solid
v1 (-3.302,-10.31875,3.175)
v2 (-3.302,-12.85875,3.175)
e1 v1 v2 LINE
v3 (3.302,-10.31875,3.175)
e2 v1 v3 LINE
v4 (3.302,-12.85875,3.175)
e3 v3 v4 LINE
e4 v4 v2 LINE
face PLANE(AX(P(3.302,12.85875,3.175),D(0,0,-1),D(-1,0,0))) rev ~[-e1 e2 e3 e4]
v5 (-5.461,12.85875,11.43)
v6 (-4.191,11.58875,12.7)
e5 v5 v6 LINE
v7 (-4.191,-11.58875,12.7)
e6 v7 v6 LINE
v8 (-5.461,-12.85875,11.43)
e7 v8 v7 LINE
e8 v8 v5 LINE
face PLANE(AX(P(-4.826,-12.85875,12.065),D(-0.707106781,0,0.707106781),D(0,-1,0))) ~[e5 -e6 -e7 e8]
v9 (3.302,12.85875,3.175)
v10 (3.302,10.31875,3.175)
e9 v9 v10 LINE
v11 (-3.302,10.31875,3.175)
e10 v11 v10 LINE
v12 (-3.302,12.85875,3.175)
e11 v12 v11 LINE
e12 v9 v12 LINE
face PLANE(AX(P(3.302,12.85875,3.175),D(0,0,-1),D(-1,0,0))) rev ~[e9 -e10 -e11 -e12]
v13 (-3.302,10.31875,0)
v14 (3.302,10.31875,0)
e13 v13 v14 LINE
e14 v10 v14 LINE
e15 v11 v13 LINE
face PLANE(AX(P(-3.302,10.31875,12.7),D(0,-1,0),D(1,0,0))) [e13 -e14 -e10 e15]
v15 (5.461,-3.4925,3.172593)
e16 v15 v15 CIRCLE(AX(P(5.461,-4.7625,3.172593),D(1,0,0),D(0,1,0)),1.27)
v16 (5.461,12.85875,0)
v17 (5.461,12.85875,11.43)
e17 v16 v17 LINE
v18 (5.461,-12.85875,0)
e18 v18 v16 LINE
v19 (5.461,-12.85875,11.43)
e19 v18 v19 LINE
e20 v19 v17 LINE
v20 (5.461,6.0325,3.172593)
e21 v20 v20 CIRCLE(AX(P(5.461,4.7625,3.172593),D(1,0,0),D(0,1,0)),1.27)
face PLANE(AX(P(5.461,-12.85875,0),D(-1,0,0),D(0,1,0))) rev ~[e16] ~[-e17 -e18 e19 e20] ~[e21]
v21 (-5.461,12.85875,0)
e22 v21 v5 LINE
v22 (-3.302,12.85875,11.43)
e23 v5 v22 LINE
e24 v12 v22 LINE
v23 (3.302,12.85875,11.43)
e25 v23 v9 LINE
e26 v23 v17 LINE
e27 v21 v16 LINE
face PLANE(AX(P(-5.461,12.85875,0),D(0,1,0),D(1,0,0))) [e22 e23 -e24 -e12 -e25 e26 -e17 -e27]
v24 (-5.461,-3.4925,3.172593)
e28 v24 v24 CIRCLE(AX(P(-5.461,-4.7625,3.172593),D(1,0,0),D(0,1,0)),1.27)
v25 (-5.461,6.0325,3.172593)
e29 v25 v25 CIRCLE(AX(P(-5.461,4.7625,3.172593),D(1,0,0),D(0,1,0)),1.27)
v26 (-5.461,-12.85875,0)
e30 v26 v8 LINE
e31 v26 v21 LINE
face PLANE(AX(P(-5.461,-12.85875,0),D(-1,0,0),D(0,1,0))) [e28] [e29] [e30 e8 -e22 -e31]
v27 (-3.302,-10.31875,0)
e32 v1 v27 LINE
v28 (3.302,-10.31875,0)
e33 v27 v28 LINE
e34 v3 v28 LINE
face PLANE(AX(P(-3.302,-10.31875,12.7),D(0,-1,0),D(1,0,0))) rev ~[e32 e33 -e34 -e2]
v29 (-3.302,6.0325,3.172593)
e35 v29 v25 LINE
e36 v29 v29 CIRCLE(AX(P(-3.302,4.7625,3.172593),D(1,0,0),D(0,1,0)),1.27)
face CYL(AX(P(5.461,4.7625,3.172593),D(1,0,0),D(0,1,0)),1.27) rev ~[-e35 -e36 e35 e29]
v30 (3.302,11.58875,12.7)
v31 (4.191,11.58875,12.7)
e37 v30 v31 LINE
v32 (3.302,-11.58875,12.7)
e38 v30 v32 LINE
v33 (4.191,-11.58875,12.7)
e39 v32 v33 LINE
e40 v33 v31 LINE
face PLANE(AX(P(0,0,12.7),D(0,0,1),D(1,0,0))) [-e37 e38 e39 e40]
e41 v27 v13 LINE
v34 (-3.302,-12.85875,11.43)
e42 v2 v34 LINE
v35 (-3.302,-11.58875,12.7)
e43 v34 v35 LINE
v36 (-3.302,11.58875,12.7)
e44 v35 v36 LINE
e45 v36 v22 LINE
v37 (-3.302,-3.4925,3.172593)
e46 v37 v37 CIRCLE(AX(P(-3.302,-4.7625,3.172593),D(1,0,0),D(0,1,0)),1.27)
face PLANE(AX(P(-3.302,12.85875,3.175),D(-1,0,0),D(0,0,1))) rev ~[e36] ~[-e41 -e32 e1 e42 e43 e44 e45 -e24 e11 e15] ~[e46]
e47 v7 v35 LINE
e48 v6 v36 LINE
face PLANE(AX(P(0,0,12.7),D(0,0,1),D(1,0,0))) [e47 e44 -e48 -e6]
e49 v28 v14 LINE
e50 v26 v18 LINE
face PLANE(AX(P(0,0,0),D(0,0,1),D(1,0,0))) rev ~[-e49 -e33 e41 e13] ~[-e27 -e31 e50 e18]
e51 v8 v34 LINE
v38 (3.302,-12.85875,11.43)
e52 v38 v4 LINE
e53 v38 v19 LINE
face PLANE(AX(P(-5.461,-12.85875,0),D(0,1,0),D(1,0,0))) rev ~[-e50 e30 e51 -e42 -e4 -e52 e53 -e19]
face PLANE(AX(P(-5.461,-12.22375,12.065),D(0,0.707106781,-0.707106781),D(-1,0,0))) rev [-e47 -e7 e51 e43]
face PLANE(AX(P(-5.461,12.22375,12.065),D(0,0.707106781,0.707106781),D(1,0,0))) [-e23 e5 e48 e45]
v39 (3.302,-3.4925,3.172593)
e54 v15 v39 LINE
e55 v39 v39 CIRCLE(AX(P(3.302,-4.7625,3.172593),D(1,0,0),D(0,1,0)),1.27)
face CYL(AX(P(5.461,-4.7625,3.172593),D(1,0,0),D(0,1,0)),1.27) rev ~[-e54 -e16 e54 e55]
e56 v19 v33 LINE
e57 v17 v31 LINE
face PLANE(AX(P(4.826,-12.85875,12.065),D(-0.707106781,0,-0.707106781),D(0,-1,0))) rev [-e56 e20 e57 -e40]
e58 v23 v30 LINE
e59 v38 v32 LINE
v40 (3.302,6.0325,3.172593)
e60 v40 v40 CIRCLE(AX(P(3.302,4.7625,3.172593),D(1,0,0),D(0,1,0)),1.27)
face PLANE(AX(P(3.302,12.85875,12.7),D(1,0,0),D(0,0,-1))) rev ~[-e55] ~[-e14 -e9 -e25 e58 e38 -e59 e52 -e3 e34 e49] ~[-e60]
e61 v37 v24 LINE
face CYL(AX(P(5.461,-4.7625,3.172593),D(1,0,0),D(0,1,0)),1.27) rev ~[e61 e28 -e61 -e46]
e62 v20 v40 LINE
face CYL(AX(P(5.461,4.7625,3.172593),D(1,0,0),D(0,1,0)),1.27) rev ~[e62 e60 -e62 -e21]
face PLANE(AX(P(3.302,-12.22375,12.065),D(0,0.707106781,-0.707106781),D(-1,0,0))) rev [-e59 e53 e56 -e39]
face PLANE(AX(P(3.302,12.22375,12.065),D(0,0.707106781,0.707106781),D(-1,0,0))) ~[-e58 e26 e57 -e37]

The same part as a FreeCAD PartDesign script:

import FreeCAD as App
import Part
import Sketcher
from FreeCAD import Vector
Q = App.Units.Quantity


def edges_at(feature, points):
    """Names of the edges that pass closest to the given points."""
    edges = feature.Shape.Edges
    near = lambda p: min(range(len(edges)), key=lambda i: edges[i].distToShape(Part.Vertex(*p))[0])
    return sorted({f"Edge{near(p) + 1}" for p in points})


def add_polygon(sketch, points):
    """Adds a closed chain of lines whose ends are joined by coincident constraints."""
    first, n = sketch.GeometryCount, len(points)
    for a, b in zip(points, points[1:] + points[:1]):
        sketch.addGeometry(Part.LineSegment(App.Vector(*a, 0), App.Vector(*b, 0)), False)
    for i in range(n):
        sketch.addConstraint(Sketcher.Constraint("Coincident", first + i, 2, first + (i + 1) % n, 1))

doc = App.newDocument("Part")
params = doc.addObject("Spreadsheet::Sheet", "Params")
for row, (alias, value) in enumerate([
    ("sketch1_width", "0.43 in"),
    ("pad1_length", "0.5 in"),
    ("sketch2_width", "0.26 in"),
    ("sketch2_height", "0.8125 in"),
    ("pocket1_length", "1 in"),
    ("sketch3_width", "0.26 in"),
    ("sketch3_height", "0.375 in"),
    ("pocket2_length", "32.18438 mm"),
    ("sketch4_diameter", "0.1 in"),
    ("pocket3_length", "1 in"),
    ("chamfer_size", "0.05 in"),
], start=1):
    params.set(f"A{row}", alias)
    params.set(f"B{row}", "=" + value)
    params.setAlias(f"B{row}", alias)

body = doc.addObject("PartDesign::Body", "Body")

# Sketch on XY plane
sketch1 = body.newObject("Sketcher::SketchObject", "Sketch")
sketch1.AttachmentSupport = (doc.getObject("XY_Plane"), [""])
sketch1.MapMode = "FlatFace"
add_polygon(sketch1, [(-5.461, 12.85875), (-5.461, -12.85875), (5.461, -12.85875), (5.461, 12.85875)])  # lines 0-3
sketch1.addConstraint(Sketcher.Constraint("Vertical", 0))
sketch1.addConstraint(Sketcher.Constraint("Horizontal", 1))
sketch1.addConstraint(Sketcher.Constraint("Vertical", 2))
sketch1.addConstraint(Sketcher.Constraint("Horizontal", 3))
sketch1.addConstraint(Sketcher.Constraint("Symmetric", 0, 2, 2, 2, -1, 1))
sketch1.addConstraint(Sketcher.Constraint("DistanceX", 1, 1, 1, 2, Q("0.43 in")))
sketch1.addConstraint(Sketcher.Constraint("DistanceY", 0, 2, 0, 1, Q("1.0125 in")))
sketch1.setExpression("Constraints[9]", "Params.sketch1_width")
pad1 = body.newObject("PartDesign::Pad", "Pad")
pad1.Profile = sketch1
pad1.setExpression("Length", "Params.pad1_length")

# Sketch on XY plane
sketch2 = body.newObject("Sketcher::SketchObject", "Sketch001")
sketch2.AttachmentSupport = (doc.getObject("XY_Plane"), [""])
sketch2.MapMode = "FlatFace"
sketch2.AttachmentOffset = App.Placement(Vector(0, 0, 0.5 * 25.4), App.Rotation())
add_polygon(sketch2, [(-3.302, 10.31875), (-3.302, -10.31875), (3.302, -10.31875), (3.302, 10.31875)])  # lines 0-3
sketch2.addConstraint(Sketcher.Constraint("Vertical", 0))
sketch2.addConstraint(Sketcher.Constraint("Horizontal", 1))
sketch2.addConstraint(Sketcher.Constraint("Vertical", 2))
sketch2.addConstraint(Sketcher.Constraint("Horizontal", 3))
sketch2.addConstraint(Sketcher.Constraint("Symmetric", 0, 2, 2, 2, -1, 1))
sketch2.addConstraint(Sketcher.Constraint("DistanceX", 1, 1, 1, 2, Q("0.26 in")))
sketch2.addConstraint(Sketcher.Constraint("DistanceY", 0, 2, 0, 1, Q("0.8125 in")))
sketch2.setExpression("Constraints[9]", "Params.sketch2_width")
sketch2.setExpression("Constraints[10]", "Params.sketch2_height")
pocket1 = body.newObject("PartDesign::Pocket", "Pocket")
pocket1.Profile = sketch2
pocket1.setExpression("Length", "Params.pocket1_length")

# Sketch on XZ plane
sketch3 = body.newObject("Sketcher::SketchObject", "Sketch002")
sketch3.AttachmentSupport = (doc.getObject("XZ_Plane"), [""])
sketch3.MapMode = "FlatFace"
sketch3.AttachmentOffset = App.Placement(Vector(0, 0, -12.85875), App.Rotation())
add_polygon(sketch3, [(3.302, 12.7), (3.302, 3.175), (-3.302, 3.175), (-3.302, 12.7)])  # lines 0-3
sketch3.addConstraint(Sketcher.Constraint("Vertical", 0))
sketch3.addConstraint(Sketcher.Constraint("Horizontal", 1))
sketch3.addConstraint(Sketcher.Constraint("Vertical", 2))
sketch3.addConstraint(Sketcher.Constraint("Horizontal", 3))
sketch3.addConstraint(Sketcher.Constraint("DistanceX", 1, 2, 1, 1, Q("0.26 in")))
sketch3.addConstraint(Sketcher.Constraint("DistanceY", -1, 1, 2, 2, Q("0.5 in")))
sketch3.addConstraint(Sketcher.Constraint("DistanceY", 0, 2, 0, 1, Q("0.375 in")))
sketch3.addConstraint(Sketcher.Constraint("DistanceX", -1, 1, 0, 2, Q("0.13 in")))
sketch3.setExpression("Constraints[8]", "Params.sketch3_width")
sketch3.setExpression("Constraints[10]", "Params.sketch3_height")
pocket2 = body.newObject("PartDesign::Pocket", "Pocket001")
pocket2.Profile = sketch3
pocket2.setExpression("Length", "Params.pocket2_length")
pocket2.Reversed = True

# Sketch on YZ plane
sketch4 = body.newObject("Sketcher::SketchObject", "Sketch003")
sketch4.AttachmentSupport = (doc.getObject("YZ_Plane"), [""])
sketch4.MapMode = "FlatFace"
sketch4.AttachmentOffset = App.Placement(Vector(0, 0, 0.215 * 25.4), App.Rotation())
sketch4.addGeometry(Part.Circle(Vector(-4.7625, 3.172593, 0), Vector(0, 0, 1), 1.27), False)
sketch4.addGeometry(Part.Circle(Vector(4.7625, 3.172593, 0), Vector(0, 0, 1), 1.27), False)
sketch4.addConstraint(Sketcher.Constraint("Equal", 0, 1))
sketch4.addConstraint(Sketcher.Constraint("Symmetric", 0, 3, 1, 3, -2))
sketch4.addConstraint(Sketcher.Constraint("Diameter", 0, Q("0.1 in")))
sketch4.addConstraint(Sketcher.Constraint("DistanceX", 0, 3, -1, 1, Q("0.1875 in")))
sketch4.addConstraint(Sketcher.Constraint("DistanceY", -1, 1, 0, 3, 3.172593))
sketch4.setExpression("Constraints[2]", "Params.sketch4_diameter")
pocket3 = body.newObject("PartDesign::Pocket", "Pocket002")
pocket3.Profile = sketch4
pocket3.setExpression("Length", "Params.pocket3_length")
doc.recompute()

chamfer = body.newObject("PartDesign::Chamfer", "Chamfer")
chamfer.Base = (pocket3, edges_at(pocket3, [
    (-5.461, 0, 12.7),
    (5.461, 0, 12.7),
    (4.381, 12.859, 12.7),
    (-4.381, 12.859, 12.7),
    (4.381, -12.859, 12.7),
    (-4.381, -12.859, 12.7),
]))
chamfer.setExpression("Size", "Params.chamfer_size")

doc.recompute()
